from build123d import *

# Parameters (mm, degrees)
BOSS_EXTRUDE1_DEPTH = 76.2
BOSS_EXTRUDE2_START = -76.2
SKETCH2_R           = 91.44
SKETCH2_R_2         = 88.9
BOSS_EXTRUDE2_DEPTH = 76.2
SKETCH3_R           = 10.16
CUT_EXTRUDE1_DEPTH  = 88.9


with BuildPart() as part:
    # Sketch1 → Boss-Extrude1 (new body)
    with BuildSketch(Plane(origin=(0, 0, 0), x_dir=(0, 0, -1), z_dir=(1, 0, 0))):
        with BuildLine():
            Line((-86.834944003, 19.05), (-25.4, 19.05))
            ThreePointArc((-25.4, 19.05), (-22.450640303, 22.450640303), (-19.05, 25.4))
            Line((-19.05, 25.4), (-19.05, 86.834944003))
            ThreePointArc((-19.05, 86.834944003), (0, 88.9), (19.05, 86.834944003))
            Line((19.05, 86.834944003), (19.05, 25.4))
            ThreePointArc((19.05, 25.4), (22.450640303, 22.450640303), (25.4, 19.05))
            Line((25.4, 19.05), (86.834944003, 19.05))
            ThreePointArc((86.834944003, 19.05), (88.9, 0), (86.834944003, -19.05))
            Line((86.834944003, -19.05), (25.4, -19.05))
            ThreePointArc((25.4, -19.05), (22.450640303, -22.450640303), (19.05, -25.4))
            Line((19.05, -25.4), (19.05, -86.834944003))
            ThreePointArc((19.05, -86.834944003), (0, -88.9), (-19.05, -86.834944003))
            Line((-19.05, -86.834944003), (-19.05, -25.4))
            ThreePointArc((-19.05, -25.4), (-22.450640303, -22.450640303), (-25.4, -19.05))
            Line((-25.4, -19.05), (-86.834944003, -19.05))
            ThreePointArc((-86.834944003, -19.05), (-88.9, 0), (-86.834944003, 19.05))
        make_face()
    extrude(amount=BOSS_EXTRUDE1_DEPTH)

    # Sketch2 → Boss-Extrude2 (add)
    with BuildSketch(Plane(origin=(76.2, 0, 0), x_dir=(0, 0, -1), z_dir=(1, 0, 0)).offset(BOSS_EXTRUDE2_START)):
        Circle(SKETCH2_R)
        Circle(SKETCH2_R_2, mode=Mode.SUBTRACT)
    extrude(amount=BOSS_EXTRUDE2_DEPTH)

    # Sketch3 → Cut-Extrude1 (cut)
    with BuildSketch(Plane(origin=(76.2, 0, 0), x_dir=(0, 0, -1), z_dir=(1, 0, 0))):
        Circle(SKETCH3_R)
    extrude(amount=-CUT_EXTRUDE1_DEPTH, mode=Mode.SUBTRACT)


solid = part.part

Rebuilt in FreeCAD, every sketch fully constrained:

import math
import FreeCAD as App
import Part
import Sketcher
from FreeCAD import Vector
Q = App.Units.Quantity

doc = App.newDocument("Part")
body = doc.addObject("PartDesign::Body", "Body")

sketch1 = doc.addObject("Sketcher::SketchObject", "Sketch")
body.addObject(sketch1)
sketch1.AttachmentSupport = (doc.YZ_Plane, [""])
sketch1.MapMode = "FlatFace"
sketch1.addGeometry([
    Part.LineSegment(Vector(19.05, 25.4, 0), Vector(19.05, 86.834944, 0)),
    Part.ArcOfCircle(Part.Circle(Vector(0, 0, 0), Vector(0, 0, 1), 88.9), math.radians(77.626375), math.radians(102.373625)),
    Part.LineSegment(Vector(-19.05, 86.834944, 0), Vector(-19.05, 25.4, 0)),
    Part.ArcOfCircle(Part.Circle(Vector(0, 0, 0), Vector(0, 0, 1), 31.75), math.radians(126.869898), math.radians(143.130102)),
    Part.LineSegment(Vector(-25.4, 19.05, 0), Vector(-86.834944, 19.05, 0)),
    Part.ArcOfCircle(Part.Circle(Vector(0, 0, 0), Vector(0, 0, 1), 88.9), math.radians(167.626375), math.radians(192.373625)),
    Part.LineSegment(Vector(-86.834944, -19.05, 0), Vector(-25.4, -19.05, 0)),
    Part.ArcOfCircle(Part.Circle(Vector(0, 0, 0), Vector(0, 0, 1), 31.75), math.radians(-143.130102), math.radians(-126.869898)),
    Part.LineSegment(Vector(-19.05, -25.4, 0), Vector(-19.05, -86.834944, 0)),
    Part.ArcOfCircle(Part.Circle(Vector(0, 0, 0), Vector(0, 0, 1), 88.9), math.radians(-102.373625), math.radians(-77.626375)),
    Part.LineSegment(Vector(19.05, -86.834944, 0), Vector(19.05, -25.4, 0)),
    Part.ArcOfCircle(Part.Circle(Vector(0, 0, 0), Vector(0, 0, 1), 31.75), math.radians(-53.130102), math.radians(-36.869898)),
    Part.LineSegment(Vector(25.4, -19.05, 0), Vector(86.834944, -19.05, 0)),
    Part.ArcOfCircle(Part.Circle(Vector(0, 0, 0), Vector(0, 0, 1), 88.9), math.radians(-12.373625), math.radians(12.373625)),
    Part.LineSegment(Vector(86.834944, 19.05, 0), Vector(25.4, 19.05, 0)),
    Part.ArcOfCircle(Part.Circle(Vector(0, 0, 0), Vector(0, 0, 1), 31.75), math.radians(36.869898), math.radians(53.130102)),
], False)
sketch1.addConstraint([
    Sketcher.Constraint("Coincident", 0, 2, 1, 1),
    Sketcher.Constraint("Coincident", 1, 2, 2, 1),
    Sketcher.Constraint("Coincident", 2, 2, 3, 1),
    Sketcher.Constraint("Coincident", 3, 2, 4, 1),
    Sketcher.Constraint("Coincident", 4, 2, 5, 1),
    Sketcher.Constraint("Coincident", 5, 2, 6, 1),
    Sketcher.Constraint("Coincident", 6, 2, 7, 1),
    Sketcher.Constraint("Coincident", 7, 2, 8, 1),
    Sketcher.Constraint("Coincident", 8, 2, 9, 1),
    Sketcher.Constraint("Coincident", 9, 2, 10, 1),
    Sketcher.Constraint("Coincident", 10, 2, 11, 1),
    Sketcher.Constraint("Coincident", 11, 2, 12, 1),
    Sketcher.Constraint("Coincident", 12, 2, 13, 1),
    Sketcher.Constraint("Coincident", 13, 2, 14, 1),
    Sketcher.Constraint("Coincident", 14, 2, 15, 1),
    Sketcher.Constraint("Coincident", 15, 2, 0, 1),
    Sketcher.Constraint("Vertical", 0),
    Sketcher.Constraint("Vertical", 2),
    Sketcher.Constraint("Horizontal", 4),
    Sketcher.Constraint("Horizontal", 6),
    Sketcher.Constraint("Vertical", 8),
    Sketcher.Constraint("Vertical", 10),
    Sketcher.Constraint("Horizontal", 12),
    Sketcher.Constraint("Horizontal", 14),
    Sketcher.Constraint("Coincident", 1, 3, -1, 1),
    Sketcher.Constraint("Coincident", 3, 3, -1, 1),
    Sketcher.Constraint("Coincident", 5, 3, -1, 1),
    Sketcher.Constraint("Coincident", 7, 3, -1, 1),
    Sketcher.Constraint("Coincident", 9, 3, -1, 1),
    Sketcher.Constraint("Coincident", 11, 3, -1, 1),
    Sketcher.Constraint("Coincident", 13, 3, -1, 1),
    Sketcher.Constraint("Coincident", 15, 3, -1, 1),
    Sketcher.Constraint("Equal", 1, 5),
    Sketcher.Constraint("Equal", 3, 7),
    Sketcher.Constraint("Equal", 5, 9),
    Sketcher.Constraint("Equal", 7, 11),
    Sketcher.Constraint("Equal", 9, 13),
    Sketcher.Constraint("Equal", 11, 15),
    Sketcher.Constraint("Horizontal", 0, 2, 1, 2),
    Sketcher.Constraint("Horizontal", 8, 2, 9, 2),
    Sketcher.Constraint("Horizontal", 6, 2, 11, 2),
    Sketcher.Constraint("Horizontal", 4, 2, 13, 2),
    Sketcher.Constraint("Vertical", 4, 2, 5, 2),
    Sketcher.Constraint("Vertical", 2, 2, 7, 2),
    Sketcher.Constraint("Equal", 14, 0),
    Sketcher.Constraint("Radius", 1, Q("3.5 in")),
    Sketcher.Constraint("Radius", 3, Q("1.25 in")),
    Sketcher.Constraint("DistanceY", -1, 1, 2, 2, Q("1 in")),
])
pad1 = doc.addObject("PartDesign::Pad", "Pad")
body.addObject(pad1)
pad1.Profile = sketch1
pad1.Length = Q("3 in")

sketch2 = doc.addObject("Sketcher::SketchObject", "Sketch001")
body.addObject(sketch2)
sketch2.AttachmentSupport = (doc.YZ_Plane, [""])
sketch2.MapMode = "FlatFace"
sketch2.addGeometry([
    Part.Circle(Vector(0, 0, 0), Vector(0, 0, 1), 91.44),
    Part.Circle(Vector(0, 0, 0), Vector(0, 0, 1), 88.9),
], False)
sketch2.addConstraint([
    Sketcher.Constraint("Coincident", 0, 3, -1, 1),
    Sketcher.Constraint("Coincident", 1, 3, -1, 1),
    Sketcher.Constraint("Diameter", 1, Q("7 in")),
    Sketcher.Constraint("Diameter", 0, Q("7.2 in")),
])
pad2 = doc.addObject("PartDesign::Pad", "Pad001")
body.addObject(pad2)
pad2.Profile = sketch2
pad2.Length = Q("3 in")

sketch3 = doc.addObject("Sketcher::SketchObject", "Sketch002")
body.addObject(sketch3)
sketch3.AttachmentSupport = (doc.YZ_Plane, [""])
sketch3.MapMode = "FlatFace"
sketch3.AttachmentOffset = App.Placement(Vector(0, 0, 3 * 25.4), App.Rotation())
sketch3.addGeometry(Part.Circle(Vector(0, 0, 0), Vector(0, 0, 1), 10.16), False)
sketch3.addConstraint([
    Sketcher.Constraint("Coincident", 0, 3, -1, 1),
    Sketcher.Constraint("Diameter", 0, Q("0.8 in")),
])
pocket1 = doc.addObject("PartDesign::Pocket", "Pocket")
body.addObject(pocket1)
pocket1.Profile = sketch3
pocket1.Length = Q("3.5 in")

doc.recompute()
